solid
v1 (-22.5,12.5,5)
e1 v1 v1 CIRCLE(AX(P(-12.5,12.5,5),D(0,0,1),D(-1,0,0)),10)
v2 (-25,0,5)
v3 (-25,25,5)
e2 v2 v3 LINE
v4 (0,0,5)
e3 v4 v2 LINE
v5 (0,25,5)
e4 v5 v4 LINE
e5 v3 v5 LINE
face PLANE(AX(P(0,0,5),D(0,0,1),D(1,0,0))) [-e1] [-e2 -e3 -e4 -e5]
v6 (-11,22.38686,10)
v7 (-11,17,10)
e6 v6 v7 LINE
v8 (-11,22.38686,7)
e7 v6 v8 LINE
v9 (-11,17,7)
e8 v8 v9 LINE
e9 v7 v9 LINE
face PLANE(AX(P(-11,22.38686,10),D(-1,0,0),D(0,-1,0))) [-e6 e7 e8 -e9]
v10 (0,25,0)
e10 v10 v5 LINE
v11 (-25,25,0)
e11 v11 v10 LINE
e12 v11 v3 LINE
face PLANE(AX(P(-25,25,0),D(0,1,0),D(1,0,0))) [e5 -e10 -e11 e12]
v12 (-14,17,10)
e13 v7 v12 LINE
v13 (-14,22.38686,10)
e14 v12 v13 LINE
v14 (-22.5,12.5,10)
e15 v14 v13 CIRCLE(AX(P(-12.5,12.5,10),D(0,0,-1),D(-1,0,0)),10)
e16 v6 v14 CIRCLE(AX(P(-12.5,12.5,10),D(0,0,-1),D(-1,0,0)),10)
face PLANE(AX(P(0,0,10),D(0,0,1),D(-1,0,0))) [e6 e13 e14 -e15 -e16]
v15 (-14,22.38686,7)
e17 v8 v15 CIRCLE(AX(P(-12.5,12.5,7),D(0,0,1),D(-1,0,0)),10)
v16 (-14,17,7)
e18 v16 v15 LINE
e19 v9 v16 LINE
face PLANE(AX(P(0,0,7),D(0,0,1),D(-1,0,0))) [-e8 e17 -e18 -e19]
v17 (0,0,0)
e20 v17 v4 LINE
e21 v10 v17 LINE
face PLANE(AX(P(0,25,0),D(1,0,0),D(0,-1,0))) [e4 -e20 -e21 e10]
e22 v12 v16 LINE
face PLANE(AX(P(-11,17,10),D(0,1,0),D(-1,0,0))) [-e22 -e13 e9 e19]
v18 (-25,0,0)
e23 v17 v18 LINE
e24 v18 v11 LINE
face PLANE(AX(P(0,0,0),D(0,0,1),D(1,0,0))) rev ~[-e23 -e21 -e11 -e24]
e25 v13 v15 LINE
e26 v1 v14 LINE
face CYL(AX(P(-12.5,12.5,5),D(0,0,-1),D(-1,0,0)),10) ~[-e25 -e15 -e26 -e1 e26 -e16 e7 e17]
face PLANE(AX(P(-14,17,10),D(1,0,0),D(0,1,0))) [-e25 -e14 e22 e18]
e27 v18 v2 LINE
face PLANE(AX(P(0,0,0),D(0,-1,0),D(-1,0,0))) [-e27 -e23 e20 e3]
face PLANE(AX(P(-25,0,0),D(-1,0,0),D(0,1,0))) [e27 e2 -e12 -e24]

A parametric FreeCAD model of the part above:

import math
import FreeCAD as App
import Part
import Sketcher
from FreeCAD import Vector

doc = App.newDocument("Part")
body = doc.addObject("PartDesign::Body", "Body")

# Sketch on XY plane
sketch1 = doc.addObject("Sketcher::SketchObject", "Sketch")
body.addObject(sketch1)
sketch1.AttachmentSupport = (doc.XY_Plane, [""])
sketch1.MapMode = "FlatFace"
sketch1.addGeometry([
    Part.LineSegment(Vector(-25, 0, 0), Vector(0, 0, 0)),
    Part.LineSegment(Vector(0, 0, 0), Vector(0, 25, 0)),
    Part.LineSegment(Vector(0, 25, 0), Vector(-25, 25, 0)),
    Part.LineSegment(Vector(-25, 25, 0), Vector(-25, 0, 0)),
], False)
sketch1.addConstraint([
    Sketcher.Constraint("Coincident", 0, 2, 1, 1),
    Sketcher.Constraint("Coincident", 1, 2, 2, 1),
    Sketcher.Constraint("Coincident", 2, 2, 3, 1),
    Sketcher.Constraint("Coincident", 3, 2, 0, 1),
    Sketcher.Constraint("Horizontal", 0),
    Sketcher.Constraint("Vertical", 1),
    Sketcher.Constraint("Horizontal", 2),
    Sketcher.Constraint("Vertical", 3),
    Sketcher.Constraint("Coincident", 0, 2, -1, 1),
    Sketcher.Constraint("Equal", 2, 1),
    Sketcher.Constraint("DistanceX", 0, 1, 0, 2, 25.0),
])
pad1 = doc.addObject("PartDesign::Pad", "Pad")
body.addObject(pad1)
pad1.Profile = sketch1
pad1.Length = 5

# Sketch on XY plane
sketch2 = doc.addObject("Sketcher::SketchObject", "Sketch001")
body.addObject(sketch2)
sketch2.AttachmentSupport = (doc.XY_Plane, [""])
sketch2.MapMode = "FlatFace"
sketch2.AttachmentOffset = App.Placement(Vector(0, 0, 5), App.Rotation())
sketch2.addGeometry(Part.Circle(Vector(-12.5, 12.5, 0), Vector(0, 0, 1), 10), False)
sketch2.addConstraint([
    Sketcher.Constraint("Diameter", 0, 20.0),
    Sketcher.Constraint("DistanceX", 0, 3, -1, 1, 12.5),
    Sketcher.Constraint("DistanceY", -1, 1, 0, 3, 12.5),
])
pad2 = doc.addObject("PartDesign::Pad", "Pad001")
body.addObject(pad2)
pad2.Profile = sketch2
pad2.Length = 5

# Sketch on XY plane
sketch3 = doc.addObject("Sketcher::SketchObject", "Sketch002")
body.addObject(sketch3)
sketch3.AttachmentSupport = (doc.XY_Plane, [""])
sketch3.MapMode = "FlatFace"
sketch3.AttachmentOffset = App.Placement(Vector(0, 0, 10), App.Rotation())
sketch3.addGeometry([
    Part.LineSegment(Vector(-11, 17, 0), Vector(-11, 22.38686, 0)),
    Part.ArcOfCircle(Part.Circle(Vector(-12.5, 12.5, 0), Vector(0, 0, 1), 10), math.radians(81.373073), math.radians(98.626927)),
    Part.LineSegment(Vector(-14, 22.38686, 0), Vector(-14, 17, 0)),
    Part.LineSegment(Vector(-14, 17, 0), Vector(-11, 17, 0)),
], False)
sketch3.addConstraint([
    Sketcher.Constraint("Coincident", 0, 2, 1, 1),
    Sketcher.Constraint("Coincident", 1, 2, 2, 1),
    Sketcher.Constraint("Coincident", 2, 2, 3, 1),
    Sketcher.Constraint("Coincident", 3, 2, 0, 1),
    Sketcher.Constraint("Vertical", 0),
    Sketcher.Constraint("Vertical", 2),
    Sketcher.Constraint("Horizontal", 3),
    Sketcher.Constraint("Horizontal", 0, 2, 1, 2),
    Sketcher.Constraint("Radius", 1, 10.0),
    Sketcher.Constraint("DistanceX", 3, 1, 3, 2, 3.0),
    Sketcher.Constraint("DistanceX", 0, 2, -1, 1, 11.0),
    Sketcher.Constraint("DistanceY", -1, 1, 2, 2, 17.0),
    Sketcher.Constraint("DistanceY", -1, 1, 1, 3, 12.5),
])
pocket1 = doc.addObject("PartDesign::Pocket", "Pocket")
body.addObject(pocket1)
pocket1.Profile = sketch3
pocket1.Length = 3

doc.recompute()
